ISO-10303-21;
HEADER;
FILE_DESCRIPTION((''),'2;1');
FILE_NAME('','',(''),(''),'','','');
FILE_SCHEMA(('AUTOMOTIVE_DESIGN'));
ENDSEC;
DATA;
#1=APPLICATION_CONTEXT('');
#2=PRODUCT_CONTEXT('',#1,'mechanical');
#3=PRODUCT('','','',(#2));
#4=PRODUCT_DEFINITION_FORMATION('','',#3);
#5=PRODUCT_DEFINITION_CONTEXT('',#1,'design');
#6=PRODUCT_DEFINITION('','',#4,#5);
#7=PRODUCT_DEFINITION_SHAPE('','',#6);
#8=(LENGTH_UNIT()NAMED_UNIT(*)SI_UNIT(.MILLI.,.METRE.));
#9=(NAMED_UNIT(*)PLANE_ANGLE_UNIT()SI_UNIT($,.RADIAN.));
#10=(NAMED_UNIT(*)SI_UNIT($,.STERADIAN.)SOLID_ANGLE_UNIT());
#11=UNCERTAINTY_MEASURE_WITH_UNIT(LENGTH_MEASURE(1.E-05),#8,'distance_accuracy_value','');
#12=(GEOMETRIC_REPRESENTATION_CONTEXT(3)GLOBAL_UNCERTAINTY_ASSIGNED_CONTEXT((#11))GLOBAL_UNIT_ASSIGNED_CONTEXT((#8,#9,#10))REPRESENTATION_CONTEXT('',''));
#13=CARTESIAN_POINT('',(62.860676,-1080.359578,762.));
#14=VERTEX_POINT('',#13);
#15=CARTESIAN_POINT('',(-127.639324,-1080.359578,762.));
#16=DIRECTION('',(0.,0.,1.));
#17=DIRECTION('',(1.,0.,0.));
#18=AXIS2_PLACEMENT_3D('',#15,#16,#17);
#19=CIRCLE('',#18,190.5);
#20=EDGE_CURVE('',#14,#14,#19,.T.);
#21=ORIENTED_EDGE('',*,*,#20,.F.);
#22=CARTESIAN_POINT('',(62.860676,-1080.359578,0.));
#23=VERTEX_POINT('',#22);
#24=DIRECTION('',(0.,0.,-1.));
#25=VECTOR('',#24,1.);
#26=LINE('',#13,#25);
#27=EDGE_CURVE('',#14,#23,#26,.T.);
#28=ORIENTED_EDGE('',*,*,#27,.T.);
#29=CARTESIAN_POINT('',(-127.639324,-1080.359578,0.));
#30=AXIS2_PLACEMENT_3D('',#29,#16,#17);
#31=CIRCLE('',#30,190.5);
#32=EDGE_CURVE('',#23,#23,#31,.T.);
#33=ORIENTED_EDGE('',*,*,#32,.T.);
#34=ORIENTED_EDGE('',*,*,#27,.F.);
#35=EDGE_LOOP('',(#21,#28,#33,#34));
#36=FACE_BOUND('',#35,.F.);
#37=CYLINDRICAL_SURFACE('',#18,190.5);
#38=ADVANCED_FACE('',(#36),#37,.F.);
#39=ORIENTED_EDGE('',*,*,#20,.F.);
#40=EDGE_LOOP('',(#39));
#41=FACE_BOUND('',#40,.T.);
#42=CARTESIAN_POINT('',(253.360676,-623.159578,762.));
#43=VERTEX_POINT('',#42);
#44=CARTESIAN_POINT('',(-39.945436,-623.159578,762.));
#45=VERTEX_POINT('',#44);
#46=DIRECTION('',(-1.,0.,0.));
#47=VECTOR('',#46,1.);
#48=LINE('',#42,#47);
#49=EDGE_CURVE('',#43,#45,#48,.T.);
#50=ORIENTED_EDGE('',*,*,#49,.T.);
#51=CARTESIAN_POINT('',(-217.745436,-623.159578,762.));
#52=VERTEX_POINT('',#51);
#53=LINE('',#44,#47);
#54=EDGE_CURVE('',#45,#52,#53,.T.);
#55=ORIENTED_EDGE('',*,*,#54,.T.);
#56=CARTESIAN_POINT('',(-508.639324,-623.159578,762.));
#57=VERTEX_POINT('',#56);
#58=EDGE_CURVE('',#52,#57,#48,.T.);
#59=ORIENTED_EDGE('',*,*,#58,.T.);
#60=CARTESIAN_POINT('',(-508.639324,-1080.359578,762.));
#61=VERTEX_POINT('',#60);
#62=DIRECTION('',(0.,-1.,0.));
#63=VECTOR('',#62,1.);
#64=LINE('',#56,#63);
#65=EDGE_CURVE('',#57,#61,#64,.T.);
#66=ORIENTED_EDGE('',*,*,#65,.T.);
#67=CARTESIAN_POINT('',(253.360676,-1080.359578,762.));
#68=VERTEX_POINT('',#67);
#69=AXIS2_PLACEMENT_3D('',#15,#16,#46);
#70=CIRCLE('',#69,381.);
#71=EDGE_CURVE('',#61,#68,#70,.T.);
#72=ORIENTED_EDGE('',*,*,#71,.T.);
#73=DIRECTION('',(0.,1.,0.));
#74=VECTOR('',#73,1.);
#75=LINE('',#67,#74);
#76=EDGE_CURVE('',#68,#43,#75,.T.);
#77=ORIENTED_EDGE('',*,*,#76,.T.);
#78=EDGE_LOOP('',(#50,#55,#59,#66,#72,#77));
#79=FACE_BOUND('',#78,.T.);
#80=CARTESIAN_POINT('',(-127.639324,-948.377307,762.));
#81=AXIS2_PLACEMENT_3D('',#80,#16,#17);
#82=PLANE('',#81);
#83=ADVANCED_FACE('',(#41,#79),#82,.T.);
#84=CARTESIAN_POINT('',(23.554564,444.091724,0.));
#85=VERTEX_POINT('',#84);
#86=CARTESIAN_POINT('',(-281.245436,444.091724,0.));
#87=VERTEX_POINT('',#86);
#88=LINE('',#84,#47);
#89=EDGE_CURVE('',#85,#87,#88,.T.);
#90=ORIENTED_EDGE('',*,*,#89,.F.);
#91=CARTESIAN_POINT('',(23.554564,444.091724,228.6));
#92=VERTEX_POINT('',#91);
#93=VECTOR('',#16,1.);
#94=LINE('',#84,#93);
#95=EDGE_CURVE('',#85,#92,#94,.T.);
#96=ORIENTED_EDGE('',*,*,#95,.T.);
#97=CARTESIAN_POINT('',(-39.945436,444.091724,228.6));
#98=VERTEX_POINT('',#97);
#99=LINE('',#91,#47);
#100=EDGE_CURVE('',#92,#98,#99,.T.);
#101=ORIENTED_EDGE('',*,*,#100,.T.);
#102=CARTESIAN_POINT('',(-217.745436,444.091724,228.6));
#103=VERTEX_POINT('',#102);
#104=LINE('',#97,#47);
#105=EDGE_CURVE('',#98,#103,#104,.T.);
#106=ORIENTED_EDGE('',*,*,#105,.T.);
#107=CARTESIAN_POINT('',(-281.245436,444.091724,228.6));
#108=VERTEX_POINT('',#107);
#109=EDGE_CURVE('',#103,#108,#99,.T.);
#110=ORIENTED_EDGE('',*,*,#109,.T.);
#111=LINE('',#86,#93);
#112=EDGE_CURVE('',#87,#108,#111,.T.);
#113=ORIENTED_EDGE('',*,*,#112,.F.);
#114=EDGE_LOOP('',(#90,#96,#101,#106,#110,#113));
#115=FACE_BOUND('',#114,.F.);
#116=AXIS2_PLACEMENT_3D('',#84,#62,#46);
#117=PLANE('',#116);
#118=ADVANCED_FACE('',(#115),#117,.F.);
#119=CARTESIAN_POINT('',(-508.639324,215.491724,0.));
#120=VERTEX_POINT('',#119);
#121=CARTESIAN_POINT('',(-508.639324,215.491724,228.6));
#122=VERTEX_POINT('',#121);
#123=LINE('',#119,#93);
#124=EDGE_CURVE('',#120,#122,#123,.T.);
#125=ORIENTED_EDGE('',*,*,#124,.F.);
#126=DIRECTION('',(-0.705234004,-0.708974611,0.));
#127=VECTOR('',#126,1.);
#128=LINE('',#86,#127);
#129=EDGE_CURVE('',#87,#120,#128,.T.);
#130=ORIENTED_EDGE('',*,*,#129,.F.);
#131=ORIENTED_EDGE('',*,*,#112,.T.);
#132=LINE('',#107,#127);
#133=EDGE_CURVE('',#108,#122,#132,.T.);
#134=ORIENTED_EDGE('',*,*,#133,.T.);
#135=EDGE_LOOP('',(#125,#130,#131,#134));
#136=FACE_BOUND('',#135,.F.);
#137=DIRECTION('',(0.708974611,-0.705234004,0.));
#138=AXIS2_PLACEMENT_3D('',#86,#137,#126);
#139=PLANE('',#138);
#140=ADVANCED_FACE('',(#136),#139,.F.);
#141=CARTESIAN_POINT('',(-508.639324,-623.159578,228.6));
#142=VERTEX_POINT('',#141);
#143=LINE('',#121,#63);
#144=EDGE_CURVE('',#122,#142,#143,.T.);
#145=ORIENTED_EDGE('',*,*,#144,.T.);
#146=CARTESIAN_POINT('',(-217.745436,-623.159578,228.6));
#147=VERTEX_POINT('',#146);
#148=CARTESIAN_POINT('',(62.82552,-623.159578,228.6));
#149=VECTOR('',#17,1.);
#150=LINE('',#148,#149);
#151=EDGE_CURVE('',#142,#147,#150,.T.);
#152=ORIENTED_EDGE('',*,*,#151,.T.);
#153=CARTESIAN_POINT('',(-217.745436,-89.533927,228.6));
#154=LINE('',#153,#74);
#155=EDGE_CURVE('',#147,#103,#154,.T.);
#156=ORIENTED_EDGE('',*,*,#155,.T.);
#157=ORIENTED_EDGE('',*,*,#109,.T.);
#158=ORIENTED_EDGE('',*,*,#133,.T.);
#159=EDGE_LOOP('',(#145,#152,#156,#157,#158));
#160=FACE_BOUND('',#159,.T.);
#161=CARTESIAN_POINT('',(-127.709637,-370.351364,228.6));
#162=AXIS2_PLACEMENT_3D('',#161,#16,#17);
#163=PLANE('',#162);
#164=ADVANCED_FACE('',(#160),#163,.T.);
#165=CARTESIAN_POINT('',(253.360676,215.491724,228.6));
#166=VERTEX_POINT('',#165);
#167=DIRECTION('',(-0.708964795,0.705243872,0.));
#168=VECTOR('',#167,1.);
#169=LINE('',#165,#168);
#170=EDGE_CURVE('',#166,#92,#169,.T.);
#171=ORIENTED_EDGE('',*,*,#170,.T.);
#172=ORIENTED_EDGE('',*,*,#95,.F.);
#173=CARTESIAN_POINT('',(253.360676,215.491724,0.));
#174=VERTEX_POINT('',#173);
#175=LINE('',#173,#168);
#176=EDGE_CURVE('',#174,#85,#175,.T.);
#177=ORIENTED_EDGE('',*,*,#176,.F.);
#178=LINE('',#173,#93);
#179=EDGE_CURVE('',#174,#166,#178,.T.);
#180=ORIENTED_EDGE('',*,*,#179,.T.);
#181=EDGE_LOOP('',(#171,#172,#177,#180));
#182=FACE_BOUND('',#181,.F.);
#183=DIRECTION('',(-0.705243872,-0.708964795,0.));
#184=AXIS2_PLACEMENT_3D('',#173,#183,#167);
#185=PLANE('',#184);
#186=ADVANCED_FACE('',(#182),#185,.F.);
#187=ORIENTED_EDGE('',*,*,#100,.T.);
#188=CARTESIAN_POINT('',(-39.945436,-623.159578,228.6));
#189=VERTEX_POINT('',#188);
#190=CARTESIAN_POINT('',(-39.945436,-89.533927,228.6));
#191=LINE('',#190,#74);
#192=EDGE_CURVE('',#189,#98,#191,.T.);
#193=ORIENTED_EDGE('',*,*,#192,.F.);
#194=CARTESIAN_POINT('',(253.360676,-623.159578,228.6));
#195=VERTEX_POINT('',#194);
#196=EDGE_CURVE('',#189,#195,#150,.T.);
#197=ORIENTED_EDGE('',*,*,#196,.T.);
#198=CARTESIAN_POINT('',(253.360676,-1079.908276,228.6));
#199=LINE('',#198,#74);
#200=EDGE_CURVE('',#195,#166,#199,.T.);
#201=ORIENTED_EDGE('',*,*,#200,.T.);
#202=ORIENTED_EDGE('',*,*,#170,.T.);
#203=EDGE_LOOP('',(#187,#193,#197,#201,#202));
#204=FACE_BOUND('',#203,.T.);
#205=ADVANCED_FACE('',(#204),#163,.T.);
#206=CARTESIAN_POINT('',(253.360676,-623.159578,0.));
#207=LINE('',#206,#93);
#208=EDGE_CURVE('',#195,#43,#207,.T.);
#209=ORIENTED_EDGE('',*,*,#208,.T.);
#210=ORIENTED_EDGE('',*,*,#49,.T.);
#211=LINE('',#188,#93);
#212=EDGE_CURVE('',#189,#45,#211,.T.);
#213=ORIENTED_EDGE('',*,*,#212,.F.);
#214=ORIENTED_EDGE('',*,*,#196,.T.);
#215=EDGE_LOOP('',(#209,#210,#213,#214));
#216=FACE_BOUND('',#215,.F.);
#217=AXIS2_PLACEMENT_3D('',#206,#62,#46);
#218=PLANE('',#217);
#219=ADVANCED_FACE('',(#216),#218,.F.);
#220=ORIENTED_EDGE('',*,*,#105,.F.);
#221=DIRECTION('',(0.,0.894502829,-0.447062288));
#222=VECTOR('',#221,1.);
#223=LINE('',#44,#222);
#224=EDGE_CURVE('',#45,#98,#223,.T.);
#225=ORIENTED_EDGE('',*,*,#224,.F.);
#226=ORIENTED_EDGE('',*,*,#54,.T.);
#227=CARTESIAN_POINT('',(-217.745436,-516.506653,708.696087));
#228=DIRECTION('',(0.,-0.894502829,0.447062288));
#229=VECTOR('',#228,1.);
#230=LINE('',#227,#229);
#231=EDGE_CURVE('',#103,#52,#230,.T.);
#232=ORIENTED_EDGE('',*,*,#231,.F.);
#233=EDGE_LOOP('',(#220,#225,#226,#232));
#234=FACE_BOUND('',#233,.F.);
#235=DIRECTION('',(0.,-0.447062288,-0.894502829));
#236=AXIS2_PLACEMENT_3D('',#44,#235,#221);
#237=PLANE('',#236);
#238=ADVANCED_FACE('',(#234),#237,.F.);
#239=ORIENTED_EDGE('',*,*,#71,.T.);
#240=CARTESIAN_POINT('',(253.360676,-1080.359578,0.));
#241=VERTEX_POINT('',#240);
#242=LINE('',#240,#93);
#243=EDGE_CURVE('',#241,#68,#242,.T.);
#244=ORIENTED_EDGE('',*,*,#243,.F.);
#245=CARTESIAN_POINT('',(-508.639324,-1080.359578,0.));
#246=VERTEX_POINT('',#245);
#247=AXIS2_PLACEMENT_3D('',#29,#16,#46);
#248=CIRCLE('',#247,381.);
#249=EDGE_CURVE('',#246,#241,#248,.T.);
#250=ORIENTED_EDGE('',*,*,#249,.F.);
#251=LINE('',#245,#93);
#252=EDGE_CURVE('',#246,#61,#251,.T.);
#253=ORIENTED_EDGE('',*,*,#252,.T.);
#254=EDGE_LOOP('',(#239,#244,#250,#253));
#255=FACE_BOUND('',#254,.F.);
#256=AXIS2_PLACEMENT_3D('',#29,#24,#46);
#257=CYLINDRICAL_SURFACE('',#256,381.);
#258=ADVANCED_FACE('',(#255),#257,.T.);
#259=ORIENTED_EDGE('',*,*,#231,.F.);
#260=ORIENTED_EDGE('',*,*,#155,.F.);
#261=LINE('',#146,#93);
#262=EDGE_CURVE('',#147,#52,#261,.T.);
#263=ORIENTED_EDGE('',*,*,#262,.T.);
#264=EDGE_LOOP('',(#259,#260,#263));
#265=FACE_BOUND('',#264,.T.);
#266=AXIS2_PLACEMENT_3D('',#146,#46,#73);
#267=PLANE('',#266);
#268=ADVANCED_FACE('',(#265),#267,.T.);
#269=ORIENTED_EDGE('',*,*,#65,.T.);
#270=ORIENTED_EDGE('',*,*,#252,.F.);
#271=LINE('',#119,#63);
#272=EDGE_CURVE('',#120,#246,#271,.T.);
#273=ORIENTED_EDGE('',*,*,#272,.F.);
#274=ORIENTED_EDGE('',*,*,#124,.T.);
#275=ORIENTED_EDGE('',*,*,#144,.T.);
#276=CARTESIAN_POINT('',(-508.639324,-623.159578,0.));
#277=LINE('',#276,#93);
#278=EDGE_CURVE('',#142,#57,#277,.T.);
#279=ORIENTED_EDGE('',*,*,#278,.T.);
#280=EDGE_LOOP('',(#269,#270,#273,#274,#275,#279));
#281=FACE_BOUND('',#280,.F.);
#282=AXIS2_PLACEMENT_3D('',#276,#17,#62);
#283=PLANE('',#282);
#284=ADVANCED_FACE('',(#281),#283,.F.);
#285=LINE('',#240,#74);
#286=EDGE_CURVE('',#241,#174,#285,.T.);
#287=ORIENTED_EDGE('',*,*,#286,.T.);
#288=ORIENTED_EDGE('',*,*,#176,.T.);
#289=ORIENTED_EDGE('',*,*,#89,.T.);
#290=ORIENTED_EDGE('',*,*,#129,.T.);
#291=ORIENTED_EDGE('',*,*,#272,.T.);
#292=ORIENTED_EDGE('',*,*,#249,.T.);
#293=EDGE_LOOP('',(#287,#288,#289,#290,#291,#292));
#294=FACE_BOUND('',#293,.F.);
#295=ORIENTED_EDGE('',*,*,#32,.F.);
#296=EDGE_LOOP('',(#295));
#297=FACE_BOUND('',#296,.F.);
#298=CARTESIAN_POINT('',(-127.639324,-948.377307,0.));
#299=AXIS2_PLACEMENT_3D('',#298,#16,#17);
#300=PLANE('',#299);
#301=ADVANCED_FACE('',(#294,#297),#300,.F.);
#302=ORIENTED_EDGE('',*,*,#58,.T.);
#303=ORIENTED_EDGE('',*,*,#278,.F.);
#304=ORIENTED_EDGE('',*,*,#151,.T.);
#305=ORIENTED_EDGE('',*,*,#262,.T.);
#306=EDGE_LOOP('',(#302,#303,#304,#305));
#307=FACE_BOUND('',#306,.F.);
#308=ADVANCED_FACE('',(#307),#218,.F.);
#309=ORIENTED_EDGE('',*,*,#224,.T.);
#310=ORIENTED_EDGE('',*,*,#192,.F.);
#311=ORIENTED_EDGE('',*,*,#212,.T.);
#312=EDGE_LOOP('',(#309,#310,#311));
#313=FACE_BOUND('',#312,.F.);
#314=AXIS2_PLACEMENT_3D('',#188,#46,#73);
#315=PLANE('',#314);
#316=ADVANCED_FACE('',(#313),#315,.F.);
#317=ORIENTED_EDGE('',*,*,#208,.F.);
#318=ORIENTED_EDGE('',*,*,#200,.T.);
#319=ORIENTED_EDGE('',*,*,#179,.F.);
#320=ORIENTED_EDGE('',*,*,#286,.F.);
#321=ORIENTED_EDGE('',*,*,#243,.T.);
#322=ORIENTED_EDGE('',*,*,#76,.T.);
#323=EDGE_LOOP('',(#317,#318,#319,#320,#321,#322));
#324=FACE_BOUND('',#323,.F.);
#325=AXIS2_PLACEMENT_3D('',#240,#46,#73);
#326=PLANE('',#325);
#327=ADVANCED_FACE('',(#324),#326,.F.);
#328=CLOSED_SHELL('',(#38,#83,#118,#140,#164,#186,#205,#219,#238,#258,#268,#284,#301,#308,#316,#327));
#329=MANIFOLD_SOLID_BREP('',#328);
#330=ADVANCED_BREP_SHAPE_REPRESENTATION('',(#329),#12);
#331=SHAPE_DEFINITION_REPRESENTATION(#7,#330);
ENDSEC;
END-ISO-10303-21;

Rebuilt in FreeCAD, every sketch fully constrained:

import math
import FreeCAD as App
import Part
import Sketcher
from FreeCAD import Vector
Q = App.Units.Quantity


def add_polygon(sketch, points):
    """Adds a closed chain of lines whose ends are joined by coincident constraints."""
    first, n = sketch.GeometryCount, len(points)
    for a, b in zip(points, points[1:] + points[:1]):
        sketch.addGeometry(Part.LineSegment(App.Vector(*a, 0), App.Vector(*b, 0)), False)
    for i in range(n):
        sketch.addConstraint(Sketcher.Constraint("Coincident", first + i, 2, first + (i + 1) % n, 1))

doc = App.newDocument("Part")
params = doc.addObject("Spreadsheet::Sheet", "Params")
for row, (alias, value) in enumerate([
    ("sketch1_width", "12 in"),
    ("sketch1_width2", "30 in"),
    ("sketch1_height", "51 in"),
    ("pad1_length", "9 in"),
    ("sketch2_radius", "15 in"),
    ("sketch2_height", "18 in"),
    ("pad2_length", "30 in"),
    ("sketch3_width", "7 in"),
    ("pad3_length", "21 in"),
    ("sketch4_height", "21 in"),
    ("pocket1_length", "150 in"),
    ("sketch5_diameter", "15 in"),
    ("pocket2_length", "45 in"),
], start=1):
    params.set(f"A{row}", alias)
    params.set(f"B{row}", "=" + value)
    params.setAlias(f"B{row}", alias)

body = doc.addObject("PartDesign::Body", "Body")

# Sketch on XY plane
sketch1 = body.newObject("Sketcher::SketchObject", "Sketch")
sketch1.AttachmentSupport = (doc.getObject("XY_Plane"), [""])
sketch1.MapMode = "FlatFace"
add_polygon(sketch1, [(24, 444), (-281, 444), (-509, 215), (-509, -1080), (253, -1080), (253, 215)])  # lines 0-5
sketch1.addConstraint([
    Sketcher.Constraint("Horizontal", 0),
    Sketcher.Constraint("Vertical", 2),
    Sketcher.Constraint("Horizontal", 3),
    Sketcher.Constraint("Vertical", 4),
    Sketcher.Constraint("Horizontal", 1, 2, 4, 2),
    Sketcher.Constraint("DistanceX", 0, 2, 0, 1, Q("12 in")),
    Sketcher.Constraint("DistanceX", 3, 1, 3, 2, Q("30 in")),
    Sketcher.Constraint("DistanceY", 2, 2, 2, 1, Q("51 in")),
    Sketcher.Constraint("DistanceY", 1, 2, 0, 2, Q("9 in")),
    Sketcher.Constraint("Distance", 1, Q("322.437498 mm")),
    Sketcher.Constraint("DistanceX", 0, 2, -1, 1, Q("281.245436 mm")),
    Sketcher.Constraint("DistanceY", -1, 1, 0, 2, Q("444.091724 mm")),
])
sketch1.setExpression("Constraints[11]", "Params.sketch1_width")
sketch1.setExpression("Constraints[12]", "Params.sketch1_width2")
sketch1.setExpression("Constraints[13]", "Params.sketch1_height")
pad1 = body.newObject("PartDesign::Pad", "Pad")
pad1.Profile = sketch1
pad1.setExpression("Length", "Params.pad1_length")

# Sketch on XY plane
sketch2 = body.newObject("Sketcher::SketchObject", "Sketch001")
sketch2.AttachmentSupport = (doc.getObject("XY_Plane"), [""])
sketch2.MapMode = "FlatFace"
sketch2.addGeometry([
    Part.ArcOfCircle(Part.Circle(Vector(-128, -1080, 0), Vector(0, 0, 1), 381), math.radians(180), math.radians(360)),
    Part.LineSegment(Vector(253, -1080, 0), Vector(253, -623, 0)),
    Part.LineSegment(Vector(253, -623, 0), Vector(-509, -623, 0)),
    Part.LineSegment(Vector(-509, -623, 0), Vector(-509, -1080, 0)),
], False)
sketch2.addConstraint([
    Sketcher.Constraint("Tangent", 0, 2, 1, 1),
    Sketcher.Constraint("Coincident", 1, 2, 2, 1),
    Sketcher.Constraint("Coincident", 2, 2, 3, 1),
    Sketcher.Constraint("Tangent", 3, 2, 0, 1),
    Sketcher.Constraint("Vertical", 1),
    Sketcher.Constraint("Horizontal", 2),
    Sketcher.Constraint("Vertical", 3),
    Sketcher.Constraint("Radius", 0, Q("15 in")),
    Sketcher.Constraint("DistanceY", 1, 1, 1, 2, Q("18 in")),
    Sketcher.Constraint("DistanceY", 0, 3, -1, 1, Q("1080.359578 mm")),
    Sketcher.Constraint("DistanceX", 0, 3, -1, 1, Q("127.639324 mm")),
])
sketch2.setExpression("Constraints[7]", "Params.sketch2_radius")
sketch2.setExpression("Constraints[8]", "Params.sketch2_height")
pad2 = body.newObject("PartDesign::Pad", "Pad001")
pad2.Profile = sketch2
pad2.setExpression("Length", "Params.pad2_length")

# Sketch on XY plane
sketch3 = body.newObject("Sketcher::SketchObject", "Sketch002")
sketch3.AttachmentSupport = (doc.getObject("XY_Plane"), [""])
sketch3.MapMode = "FlatFace"
sketch3.AttachmentOffset = App.Placement(Vector(0, 0, 9 * 25.4), App.Rotation())
add_polygon(sketch3, [(-218, 444), (-218, -623), (-40, -623), (-40, 444)])  # lines 0-3
sketch3.addConstraint([
    Sketcher.Constraint("Vertical", 0),
    Sketcher.Constraint("Horizontal", 1),
    Sketcher.Constraint("Vertical", 2),
    Sketcher.Constraint("Horizontal", 3),
    Sketcher.Constraint("DistanceX", 1, 1, 1, 2, Q("7 in")),
    Sketcher.Constraint("DistanceY", 0, 2, 0, 1, Q("1067.251302 mm")),
    Sketcher.Constraint("DistanceY", 0, 2, -1, 1, Q("623.159578 mm")),
    Sketcher.Constraint("DistanceX", 0, 2, -1, 1, Q("217.745436 mm")),
])
sketch3.setExpression("Constraints[8]", "Params.sketch3_width")
pad3 = body.newObject("PartDesign::Pad", "Pad002")
pad3.Profile = sketch3
pad3.setExpression("Length", "Params.pad3_length")

# Sketch on YZ plane
sketch4 = body.newObject("Sketcher::SketchObject", "Sketch003")
sketch4.AttachmentSupport = (doc.getObject("YZ_Plane"), [""])
sketch4.MapMode = "FlatFace"
sketch4.AttachmentOffset = App.Placement(Vector(0, 0, -39.945436), App.Rotation())
add_polygon(sketch4, [(444, 762), (-623, 762), (444, 229)])  # lines 0-2
sketch4.addConstraint([
    Sketcher.Constraint("Horizontal", 0),
    Sketcher.Constraint("Vertical", 2),
    Sketcher.Constraint("DistanceY", 2, 1, 2, 2, Q("21 in")),
    Sketcher.Constraint("DistanceY", -1, 1, 0, 2, Q("30 in")),
    Sketcher.Constraint("DistanceX", 0, 2, 0, 1, Q("1067.251302 mm")),
    Sketcher.Constraint("DistanceX", 0, 2, -1, 1, Q("623.159578 mm")),
])
sketch4.setExpression("Constraints[5]", "Params.sketch4_height")
pocket1 = body.newObject("PartDesign::Pocket", "Pocket")
pocket1.Profile = sketch4
pocket1.setExpression("Length", "Params.pocket1_length")

# Sketch on XY plane
sketch5 = body.newObject("Sketcher::SketchObject", "Sketch004")
sketch5.AttachmentSupport = (doc.getObject("XY_Plane"), [""])
sketch5.MapMode = "FlatFace"
sketch5.AttachmentOffset = App.Placement(Vector(0, 0, 30 * 25.4), App.Rotation())
sketch5.addGeometry(Part.Circle(Vector(-128, -1080, 0), Vector(0, 0, 1), 190), False)
sketch5.addConstraint([
    Sketcher.Constraint("Diameter", 0, Q("15 in")),
    Sketcher.Constraint("DistanceY", 0, 3, -1, 1, Q("1080.359578 mm")),
    Sketcher.Constraint("DistanceX", 0, 3, -1, 1, Q("127.639324 mm")),
])
sketch5.setExpression("Constraints[0]", "Params.sketch5_diameter")
pocket2 = body.newObject("PartDesign::Pocket", "Pocket001")
pocket2.Profile = sketch5
pocket2.setExpression("Length", "Params.pocket2_length")

doc.recompute()
